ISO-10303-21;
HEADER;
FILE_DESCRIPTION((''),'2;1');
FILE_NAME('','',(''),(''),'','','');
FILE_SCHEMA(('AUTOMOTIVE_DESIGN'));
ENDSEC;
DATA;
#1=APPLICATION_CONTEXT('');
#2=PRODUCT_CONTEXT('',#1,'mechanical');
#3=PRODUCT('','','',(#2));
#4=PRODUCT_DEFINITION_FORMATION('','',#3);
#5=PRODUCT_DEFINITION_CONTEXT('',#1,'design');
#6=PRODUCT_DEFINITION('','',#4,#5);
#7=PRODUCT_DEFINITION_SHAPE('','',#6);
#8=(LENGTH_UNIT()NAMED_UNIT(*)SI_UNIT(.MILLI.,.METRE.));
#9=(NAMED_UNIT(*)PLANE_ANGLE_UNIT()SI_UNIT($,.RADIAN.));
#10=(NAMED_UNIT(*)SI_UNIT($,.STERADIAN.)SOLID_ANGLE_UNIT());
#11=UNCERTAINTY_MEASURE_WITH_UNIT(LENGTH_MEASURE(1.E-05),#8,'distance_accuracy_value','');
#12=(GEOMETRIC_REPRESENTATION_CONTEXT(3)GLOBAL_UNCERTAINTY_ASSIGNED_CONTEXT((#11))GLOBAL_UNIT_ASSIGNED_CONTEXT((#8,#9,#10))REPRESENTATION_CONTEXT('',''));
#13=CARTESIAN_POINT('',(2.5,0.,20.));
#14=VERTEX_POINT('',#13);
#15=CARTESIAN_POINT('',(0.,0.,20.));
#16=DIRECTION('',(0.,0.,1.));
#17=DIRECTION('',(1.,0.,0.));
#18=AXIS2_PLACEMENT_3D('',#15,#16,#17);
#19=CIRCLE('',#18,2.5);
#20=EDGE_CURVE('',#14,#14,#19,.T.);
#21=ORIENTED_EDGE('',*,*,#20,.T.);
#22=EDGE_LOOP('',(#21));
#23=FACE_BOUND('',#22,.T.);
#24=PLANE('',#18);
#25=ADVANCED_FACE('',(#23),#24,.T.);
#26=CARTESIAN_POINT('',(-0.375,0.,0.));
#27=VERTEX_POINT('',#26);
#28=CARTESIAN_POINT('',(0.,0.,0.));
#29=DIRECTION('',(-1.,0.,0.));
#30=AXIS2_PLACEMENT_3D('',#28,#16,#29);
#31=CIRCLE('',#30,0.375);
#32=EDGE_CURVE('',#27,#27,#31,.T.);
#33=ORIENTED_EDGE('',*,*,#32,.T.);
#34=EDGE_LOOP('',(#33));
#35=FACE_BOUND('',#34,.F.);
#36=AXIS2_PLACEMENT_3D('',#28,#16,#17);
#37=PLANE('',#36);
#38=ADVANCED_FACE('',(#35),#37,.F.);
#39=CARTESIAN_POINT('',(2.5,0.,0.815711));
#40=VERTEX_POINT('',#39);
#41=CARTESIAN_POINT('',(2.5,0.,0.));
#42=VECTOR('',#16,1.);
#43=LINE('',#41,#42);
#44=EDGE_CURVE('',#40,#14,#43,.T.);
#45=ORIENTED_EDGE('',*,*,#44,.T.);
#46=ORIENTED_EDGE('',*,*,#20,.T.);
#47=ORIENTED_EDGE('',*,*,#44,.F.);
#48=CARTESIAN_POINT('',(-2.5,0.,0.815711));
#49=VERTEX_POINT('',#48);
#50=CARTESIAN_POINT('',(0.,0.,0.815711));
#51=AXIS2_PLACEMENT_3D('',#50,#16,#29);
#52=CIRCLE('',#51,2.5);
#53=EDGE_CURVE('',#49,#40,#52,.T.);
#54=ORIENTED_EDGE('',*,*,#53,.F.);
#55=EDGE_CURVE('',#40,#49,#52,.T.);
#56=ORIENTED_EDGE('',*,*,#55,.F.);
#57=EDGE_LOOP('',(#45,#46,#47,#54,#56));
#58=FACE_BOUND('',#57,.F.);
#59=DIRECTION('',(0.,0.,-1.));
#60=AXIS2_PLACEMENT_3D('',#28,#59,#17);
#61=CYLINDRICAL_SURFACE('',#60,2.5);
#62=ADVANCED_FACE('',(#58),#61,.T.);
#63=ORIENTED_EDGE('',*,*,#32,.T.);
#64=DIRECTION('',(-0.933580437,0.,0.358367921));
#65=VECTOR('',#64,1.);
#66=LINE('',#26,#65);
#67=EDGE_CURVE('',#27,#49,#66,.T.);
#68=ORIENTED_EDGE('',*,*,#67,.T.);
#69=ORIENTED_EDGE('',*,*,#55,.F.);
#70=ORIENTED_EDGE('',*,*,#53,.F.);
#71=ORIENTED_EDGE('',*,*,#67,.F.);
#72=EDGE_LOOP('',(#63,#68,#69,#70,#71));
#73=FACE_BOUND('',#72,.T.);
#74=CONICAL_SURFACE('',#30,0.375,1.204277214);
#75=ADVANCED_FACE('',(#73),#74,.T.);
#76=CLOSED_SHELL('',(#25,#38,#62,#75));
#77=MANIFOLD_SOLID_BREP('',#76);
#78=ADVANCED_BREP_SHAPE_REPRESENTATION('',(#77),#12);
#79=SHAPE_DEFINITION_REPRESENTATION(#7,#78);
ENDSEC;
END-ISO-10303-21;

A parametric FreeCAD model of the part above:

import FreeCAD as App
import Part
import Sketcher
Q = App.Units.Quantity

doc = App.newDocument("Part")
params = doc.addObject("Spreadsheet::Sheet", "Params")
for row, (alias, value) in enumerate([
    ("revolution_angle", "360 deg"),
    ("sketch2_diameter", "5 mm"),
    ("pad1_length", "20 mm"),
], start=1):
    params.set(f"A{row}", alias)
    params.set(f"B{row}", "=" + value)
    params.setAlias(f"B{row}", alias)

body = doc.addObject("PartDesign::Body", "Body")

# Sketch on XZ plane
sketch1 = body.newObject("Sketcher::SketchObject", "Sketch")
sketch1.AttachmentSupport = (doc.getObject("XZ_Plane"), [""])
sketch1.MapMode = "FlatFace"
sketch1.addGeometry([
    Part.LineSegment(App.Vector(-0.4, 0, 0), App.Vector(-2.5, 0.8, 0)),
    Part.LineSegment(App.Vector(-2.5, 0.8, 0), App.Vector(-2.5, 0, 0)),
    Part.LineSegment(App.Vector(-2.5, 0, 0), App.Vector(-0.4, 0, 0)),
], False)
sketch1.addConstraint([
    Sketcher.Constraint("Coincident", 0, 2, 1, 1),
    Sketcher.Constraint("Coincident", 1, 2, 2, 1),
    Sketcher.Constraint("Coincident", 2, 2, 0, 1),
    Sketcher.Constraint("Vertical", 1),
    Sketcher.Constraint("Horizontal", 2),
    Sketcher.Constraint("PointOnObject", 1, 2, -1),
    Sketcher.Constraint("Angle", 0, Q("159.000002 deg")),
    Sketcher.Constraint("DistanceX", 0, 2, -1, 1, 2.5),
    Sketcher.Constraint("DistanceX", 2, 1, 2, 2, 2.125),
])
revolution = body.newObject("PartDesign::Revolution", "Revolution")
revolution.Profile = sketch1
revolution.ReferenceAxis = (sketch1, ["V_Axis"])
revolution.setExpression("Angle", "Params.revolution_angle")
body2 = doc.addObject("PartDesign::Body", "Body001")

# Sketch on XY plane
sketch2 = body2.newObject("Sketcher::SketchObject", "Sketch001")
sketch2.AttachmentSupport = (doc.getObject("XY_Plane001"), [""])
sketch2.MapMode = "FlatFace"
sketch2.addGeometry(Part.Circle(App.Vector(0, 0, 0), App.Vector(0, 0, 1), 2.5), False)
sketch2.addConstraint([
    Sketcher.Constraint("Coincident", 0, 3, -1, 1),
    Sketcher.Constraint("Diameter", 0, 5.0),
])
sketch2.setExpression("Constraints[1]", "Params.sketch2_diameter")
pad1 = body2.newObject("PartDesign::Pad", "Pad")
pad1.Profile = sketch2
pad1.setExpression("Length", "Params.pad1_length")
doc.recompute()

boolean = body2.newObject("PartDesign::Boolean", "Boolean")
boolean.Type = "Cut"
boolean.addObjects([body])

doc.recompute()
